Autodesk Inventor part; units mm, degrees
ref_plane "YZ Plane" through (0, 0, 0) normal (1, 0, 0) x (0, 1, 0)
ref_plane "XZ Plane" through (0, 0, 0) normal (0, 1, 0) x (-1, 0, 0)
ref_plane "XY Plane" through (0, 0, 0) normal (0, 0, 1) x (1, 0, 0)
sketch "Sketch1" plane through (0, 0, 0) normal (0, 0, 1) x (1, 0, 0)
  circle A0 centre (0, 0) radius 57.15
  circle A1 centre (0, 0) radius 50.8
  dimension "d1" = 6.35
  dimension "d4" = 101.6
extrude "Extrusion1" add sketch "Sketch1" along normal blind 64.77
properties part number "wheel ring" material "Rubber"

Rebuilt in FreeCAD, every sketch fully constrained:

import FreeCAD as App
import Part
import Sketcher

V = App.Vector
Q = App.Units.Quantity

doc = App.newDocument("Part")
body = doc.addObject("PartDesign::Body", "Body")

# Sketch on XY plane
sketch1 = doc.addObject("Sketcher::SketchObject", "Sketch")
body.addObject(sketch1)
sketch1.AttachmentSupport = (doc.XY_Plane, [""])
sketch1.MapMode = "FlatFace"
sketch1.addGeometry(Part.Circle(V(0, 0, 0), V(0, 0, 1), 57), False)
sketch1.addGeometry(Part.Circle(V(0, 0, 0), V(0, 0, 1), 51), False)
sketch1.addConstraint(Sketcher.Constraint("Coincident", 0, 3, -1, 1))
sketch1.addConstraint(Sketcher.Constraint("Coincident", 1, 3, -1, 1))
sketch1.addConstraint(Sketcher.Constraint("Diameter", 1, Q("4 in")))
sketch1.addConstraint(Sketcher.Constraint("Diameter", 0, Q("4.5 in")))
pad1 = doc.addObject("PartDesign::Pad", "Pad")
body.addObject(pad1)
pad1.Profile = sketch1
pad1.Length = Q("2.55 in")

doc.recompute()
